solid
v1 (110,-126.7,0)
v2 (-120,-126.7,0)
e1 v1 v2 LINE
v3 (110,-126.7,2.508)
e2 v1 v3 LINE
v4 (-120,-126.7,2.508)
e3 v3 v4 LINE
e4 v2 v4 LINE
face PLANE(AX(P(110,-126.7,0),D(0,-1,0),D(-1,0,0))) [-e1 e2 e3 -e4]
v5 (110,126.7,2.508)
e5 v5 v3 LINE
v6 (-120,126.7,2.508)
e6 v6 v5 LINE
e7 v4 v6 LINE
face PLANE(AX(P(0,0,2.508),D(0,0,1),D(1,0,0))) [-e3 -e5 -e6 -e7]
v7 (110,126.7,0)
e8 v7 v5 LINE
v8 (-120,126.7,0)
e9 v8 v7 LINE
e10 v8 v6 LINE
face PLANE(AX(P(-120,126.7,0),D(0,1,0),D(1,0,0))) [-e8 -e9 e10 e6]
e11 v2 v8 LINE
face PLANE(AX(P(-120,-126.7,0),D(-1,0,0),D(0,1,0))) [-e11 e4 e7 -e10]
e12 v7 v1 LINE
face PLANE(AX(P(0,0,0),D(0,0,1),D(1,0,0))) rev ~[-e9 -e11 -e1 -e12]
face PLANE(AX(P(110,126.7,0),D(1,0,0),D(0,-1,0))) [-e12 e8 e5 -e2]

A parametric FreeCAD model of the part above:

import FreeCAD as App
import Part
import Sketcher

V = App.Vector
Q = App.Units.Quantity


def add_polygon(sketch, points):
    """Adds a closed chain of lines whose ends are joined by coincident constraints."""
    first, n = sketch.GeometryCount, len(points)
    for a, b in zip(points, points[1:] + points[:1]):
        sketch.addGeometry(Part.LineSegment(App.Vector(*a, 0), App.Vector(*b, 0)), False)
    for i in range(n):
        sketch.addConstraint(Sketcher.Constraint("Coincident", first + i, 2, first + (i + 1) % n, 1))

doc = App.newDocument("Part")
body = doc.addObject("PartDesign::Body", "Body")

sketch1 = body.newObject("Sketcher::SketchObject", "Sketch")
sketch1.AttachmentSupport = (doc.getObject("XY_Plane"), [""])
sketch1.MapMode = "FlatFace"
add_polygon(sketch1, [(-120, 126.7), (-120, -126.7), (110, -126.7), (110, 126.7)])
sketch1.addConstraint([
    Sketcher.Constraint("Vertical", 0),
    Sketcher.Constraint("Horizontal", 1),
    Sketcher.Constraint("Vertical", 2),
    Sketcher.Constraint("Horizontal", 3),
    Sketcher.Constraint("DistanceX", 1, 1, 1, 2, Q("230 mm")),
    Sketcher.Constraint("DistanceY", 0, 2, 0, 1, Q("253.4 mm")),
    Sketcher.Constraint("DistanceX", 0, 2, -1, 1, Q("120 mm")),
    Sketcher.Constraint("DistanceY", 0, 2, -1, 1, Q("126.7 mm")),
])
pad1 = body.newObject("PartDesign::Pad", "Pad")
pad1.Profile = sketch1
pad1.Length = 2.508

doc.recompute()
